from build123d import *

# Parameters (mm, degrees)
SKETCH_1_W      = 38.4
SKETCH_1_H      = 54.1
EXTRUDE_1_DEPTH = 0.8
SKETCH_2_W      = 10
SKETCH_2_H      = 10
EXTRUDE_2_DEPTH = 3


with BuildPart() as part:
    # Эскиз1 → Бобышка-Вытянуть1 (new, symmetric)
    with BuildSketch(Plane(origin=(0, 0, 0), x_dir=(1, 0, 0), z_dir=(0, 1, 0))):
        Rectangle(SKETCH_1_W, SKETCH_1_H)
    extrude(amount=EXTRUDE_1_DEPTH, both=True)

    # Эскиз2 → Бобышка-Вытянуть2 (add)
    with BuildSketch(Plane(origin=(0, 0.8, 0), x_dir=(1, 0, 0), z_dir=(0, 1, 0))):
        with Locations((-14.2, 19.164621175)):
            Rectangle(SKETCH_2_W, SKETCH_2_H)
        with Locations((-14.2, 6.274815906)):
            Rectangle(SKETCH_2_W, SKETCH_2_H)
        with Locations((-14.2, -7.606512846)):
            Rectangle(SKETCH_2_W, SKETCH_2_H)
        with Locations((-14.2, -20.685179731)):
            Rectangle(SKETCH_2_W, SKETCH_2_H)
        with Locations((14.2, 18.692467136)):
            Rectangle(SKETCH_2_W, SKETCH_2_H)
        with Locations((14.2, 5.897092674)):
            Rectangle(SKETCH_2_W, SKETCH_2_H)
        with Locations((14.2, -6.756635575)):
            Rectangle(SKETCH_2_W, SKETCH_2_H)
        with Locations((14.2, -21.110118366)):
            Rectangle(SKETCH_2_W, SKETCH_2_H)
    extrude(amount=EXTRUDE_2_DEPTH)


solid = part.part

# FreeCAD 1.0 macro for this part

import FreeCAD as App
import Part
import Sketcher
from FreeCAD import Vector

doc = App.newDocument("Part")
params = doc.addObject("Spreadsheet::Sheet", "Params")
for row, (alias, value) in enumerate([
    ("sketch1_width", "38.4 mm"),
    ("sketch1_height", "54.1 mm"),
    ("pad1_length", "1.6 mm"),
    ("sketch2_width", "10 mm"),
    ("pad2_length", "3 mm"),
], start=1):
    params.set(f"A{row}", alias)
    params.set(f"B{row}", "=" + value)
    params.setAlias(f"B{row}", alias)

body = doc.addObject("PartDesign::Body", "Body")

sketch1 = doc.addObject("Sketcher::SketchObject", "Sketch")
body.addObject(sketch1)
sketch1.AttachmentSupport = (doc.XZ_Plane, [""])
sketch1.MapMode = "FlatFace"
sketch1.addGeometry([
    Part.LineSegment(Vector(-19, -27, 0), Vector(-19, 27, 0)),
    Part.LineSegment(Vector(-19, 27, 0), Vector(19, 27, 0)),
    Part.LineSegment(Vector(19, 27, 0), Vector(19, -27, 0)),
    Part.LineSegment(Vector(19, -27, 0), Vector(-19, -27, 0)),
], False)
sketch1.addConstraint([
    Sketcher.Constraint("Coincident", 0, 2, 1, 1),
    Sketcher.Constraint("Coincident", 1, 2, 2, 1),
    Sketcher.Constraint("Coincident", 2, 2, 3, 1),
    Sketcher.Constraint("Coincident", 3, 2, 0, 1),
    Sketcher.Constraint("Vertical", 0),
    Sketcher.Constraint("Horizontal", 1),
    Sketcher.Constraint("Vertical", 2),
    Sketcher.Constraint("Horizontal", 3),
    Sketcher.Constraint("Symmetric", 0, 2, 2, 2, -1, 1),
    Sketcher.Constraint("DistanceX", 1, 1, 1, 2, 38.4),
    Sketcher.Constraint("DistanceY", 0, 1, 0, 2, 54.1),
])
sketch1.setExpression("Constraints[9]", "Params.sketch1_width")
sketch1.setExpression("Constraints[10]", "Params.sketch1_height")
pad1 = doc.addObject("PartDesign::Pad", "Pad")
body.addObject(pad1)
pad1.Profile = sketch1
pad1.setExpression("Length", "Params.pad1_length")
pad1.Midplane = True

sketch2 = doc.addObject("Sketcher::SketchObject", "Sketch001")
body.addObject(sketch2)
sketch2.AttachmentSupport = (doc.XZ_Plane, [""])
sketch2.MapMode = "FlatFace"
sketch2.AttachmentOffset = App.Placement(Vector(0, 0, -0.8), App.Rotation())
sketch2.addGeometry([
    Part.LineSegment(Vector(-19, -24, 0), Vector(-19, -14, 0)),
    Part.LineSegment(Vector(-19, -14, 0), Vector(-9, -14, 0)),
    Part.LineSegment(Vector(-9, -14, 0), Vector(-9, -24, 0)),
    Part.LineSegment(Vector(-9, -24, 0), Vector(-19, -24, 0)),
    Part.LineSegment(Vector(-19, -11, 0), Vector(-19, -1, 0)),
    Part.LineSegment(Vector(-19, -1, 0), Vector(-9, -1, 0)),
    Part.LineSegment(Vector(-9, -1, 0), Vector(-9, -11, 0)),
    Part.LineSegment(Vector(-9, -11, 0), Vector(-19, -11, 0)),
    Part.LineSegment(Vector(-19, 3, 0), Vector(-19, 13, 0)),
    Part.LineSegment(Vector(-19, 13, 0), Vector(-9, 13, 0)),
    Part.LineSegment(Vector(-9, 13, 0), Vector(-9, 3, 0)),
    Part.LineSegment(Vector(-9, 3, 0), Vector(-19, 3, 0)),
    Part.LineSegment(Vector(-19, 16, 0), Vector(-19, 26, 0)),
    Part.LineSegment(Vector(-19, 26, 0), Vector(-9, 26, 0)),
    Part.LineSegment(Vector(-9, 26, 0), Vector(-9, 16, 0)),
    Part.LineSegment(Vector(-9, 16, 0), Vector(-19, 16, 0)),
    Part.LineSegment(Vector(9, -24, 0), Vector(9, -14, 0)),
    Part.LineSegment(Vector(9, -14, 0), Vector(19, -14, 0)),
    Part.LineSegment(Vector(19, -14, 0), Vector(19, -24, 0)),
    Part.LineSegment(Vector(19, -24, 0), Vector(9, -24, 0)),
    Part.LineSegment(Vector(9, -11, 0), Vector(9, -1, 0)),
    Part.LineSegment(Vector(9, -1, 0), Vector(19, -1, 0)),
    Part.LineSegment(Vector(19, -1, 0), Vector(19, -11, 0)),
    Part.LineSegment(Vector(19, -11, 0), Vector(9, -11, 0)),
    Part.LineSegment(Vector(9, 2, 0), Vector(9, 12, 0)),
    Part.LineSegment(Vector(9, 12, 0), Vector(19, 12, 0)),
    Part.LineSegment(Vector(19, 12, 0), Vector(19, 2, 0)),
    Part.LineSegment(Vector(19, 2, 0), Vector(9, 2, 0)),
    Part.LineSegment(Vector(9, 16, 0), Vector(9, 26, 0)),
    Part.LineSegment(Vector(9, 26, 0), Vector(19, 26, 0)),
    Part.LineSegment(Vector(19, 26, 0), Vector(19, 16, 0)),
    Part.LineSegment(Vector(19, 16, 0), Vector(9, 16, 0)),
], False)
sketch2.addConstraint([
    Sketcher.Constraint("Coincident", 0, 2, 1, 1),
    Sketcher.Constraint("Coincident", 1, 2, 2, 1),
    Sketcher.Constraint("Coincident", 2, 2, 3, 1),
    Sketcher.Constraint("Coincident", 3, 2, 0, 1),
    Sketcher.Constraint("Coincident", 4, 2, 5, 1),
    Sketcher.Constraint("Coincident", 5, 2, 6, 1),
    Sketcher.Constraint("Coincident", 6, 2, 7, 1),
    Sketcher.Constraint("Coincident", 7, 2, 4, 1),
    Sketcher.Constraint("Coincident", 8, 2, 9, 1),
    Sketcher.Constraint("Coincident", 9, 2, 10, 1),
    Sketcher.Constraint("Coincident", 10, 2, 11, 1),
    Sketcher.Constraint("Coincident", 11, 2, 8, 1),
    Sketcher.Constraint("Coincident", 12, 2, 13, 1),
    Sketcher.Constraint("Coincident", 13, 2, 14, 1),
    Sketcher.Constraint("Coincident", 14, 2, 15, 1),
    Sketcher.Constraint("Coincident", 15, 2, 12, 1),
    Sketcher.Constraint("Coincident", 16, 2, 17, 1),
    Sketcher.Constraint("Coincident", 17, 2, 18, 1),
    Sketcher.Constraint("Coincident", 18, 2, 19, 1),
    Sketcher.Constraint("Coincident", 19, 2, 16, 1),
    Sketcher.Constraint("Coincident", 20, 2, 21, 1),
    Sketcher.Constraint("Coincident", 21, 2, 22, 1),
    Sketcher.Constraint("Coincident", 22, 2, 23, 1),
    Sketcher.Constraint("Coincident", 23, 2, 20, 1),
    Sketcher.Constraint("Coincident", 24, 2, 25, 1),
    Sketcher.Constraint("Coincident", 25, 2, 26, 1),
    Sketcher.Constraint("Coincident", 26, 2, 27, 1),
    Sketcher.Constraint("Coincident", 27, 2, 24, 1),
    Sketcher.Constraint("Coincident", 28, 2, 29, 1),
    Sketcher.Constraint("Coincident", 29, 2, 30, 1),
    Sketcher.Constraint("Coincident", 30, 2, 31, 1),
    Sketcher.Constraint("Coincident", 31, 2, 28, 1),
    Sketcher.Constraint("Vertical", 0),
    Sketcher.Constraint("Horizontal", 1),
    Sketcher.Constraint("Vertical", 2),
    Sketcher.Constraint("Horizontal", 3),
    Sketcher.Constraint("Vertical", 4),
    Sketcher.Constraint("Horizontal", 5),
    Sketcher.Constraint("Vertical", 6),
    Sketcher.Constraint("Horizontal", 7),
    Sketcher.Constraint("Vertical", 8),
    Sketcher.Constraint("Horizontal", 9),
    Sketcher.Constraint("Vertical", 10),
    Sketcher.Constraint("Horizontal", 11),
    Sketcher.Constraint("Vertical", 12),
    Sketcher.Constraint("Horizontal", 13),
    Sketcher.Constraint("Vertical", 14),
    Sketcher.Constraint("Horizontal", 15),
    Sketcher.Constraint("Vertical", 16),
    Sketcher.Constraint("Horizontal", 17),
    Sketcher.Constraint("Vertical", 18),
    Sketcher.Constraint("Horizontal", 19),
    Sketcher.Constraint("Vertical", 20),
    Sketcher.Constraint("Horizontal", 21),
    Sketcher.Constraint("Vertical", 22),
    Sketcher.Constraint("Horizontal", 23),
    Sketcher.Constraint("Vertical", 24),
    Sketcher.Constraint("Horizontal", 25),
    Sketcher.Constraint("Vertical", 26),
    Sketcher.Constraint("Horizontal", 27),
    Sketcher.Constraint("Vertical", 28),
    Sketcher.Constraint("Horizontal", 29),
    Sketcher.Constraint("Vertical", 30),
    Sketcher.Constraint("Horizontal", 31),
    Sketcher.Constraint("Vertical", 3, 2, 4, 2),
    Sketcher.Constraint("Vertical", 2, 2, 5, 2),
    Sketcher.Constraint("Vertical", 7, 2, 8, 2),
    Sketcher.Constraint("Vertical", 6, 2, 9, 2),
    Sketcher.Constraint("Vertical", 11, 2, 12, 2),
    Sketcher.Constraint("Vertical", 10, 2, 13, 2),
    Sketcher.Constraint("Vertical", 19, 2, 20, 2),
    Sketcher.Constraint("Vertical", 18, 2, 21, 2),
    Sketcher.Constraint("Vertical", 23, 2, 24, 2),
    Sketcher.Constraint("Vertical", 22, 2, 25, 2),
    Sketcher.Constraint("Vertical", 27, 2, 28, 2),
    Sketcher.Constraint("Vertical", 26, 2, 29, 2),
    Sketcher.Constraint("Equal", 15, 17),
    Sketcher.Constraint("Equal", 31, 0),
    Sketcher.Constraint("Equal", 2, 4),
    Sketcher.Constraint("Equal", 6, 8),
    Sketcher.Constraint("Equal", 10, 12),
    Sketcher.Constraint("Equal", 14, 16),
    Sketcher.Constraint("Equal", 18, 20),
    Sketcher.Constraint("Equal", 22, 24),
    Sketcher.Constraint("Equal", 26, 28),
    Sketcher.Constraint("DistanceX", 1, 1, 1, 2, 10.0),
    Sketcher.Constraint("DistanceX", 0, 2, -1, 1, 19.2),
    Sketcher.Constraint("DistanceX", -1, 1, 16, 2, 9.2),
    Sketcher.Constraint("DistanceY", 0, 2, -1, 1, 14.164621),
    Sketcher.Constraint("DistanceY", -1, 1, 12, 2, 25.68518),
    Sketcher.Constraint("DistanceY", -1, 1, 28, 2, 26.110118),
    Sketcher.Constraint("DistanceY", 4, 2, 8, 2, 13.881329),
    Sketcher.Constraint("DistanceY", 16, 2, 6, 2, 2.417651),
    Sketcher.Constraint("DistanceY", 20, 2, 24, 2, 12.653728),
    Sketcher.Constraint("DistanceY", 4, 2, -1, 1, 1.274816),
    Sketcher.Constraint("DistanceY", 20, 2, -1, 1, 0.897093),
])
sketch2.setExpression("Constraints[85]", "Params.sketch2_width")
pad2 = doc.addObject("PartDesign::Pad", "Pad001")
body.addObject(pad2)
pad2.Profile = sketch2
pad2.setExpression("Length", "Params.pad2_length")
pad2.Reversed = True

doc.recompute()
